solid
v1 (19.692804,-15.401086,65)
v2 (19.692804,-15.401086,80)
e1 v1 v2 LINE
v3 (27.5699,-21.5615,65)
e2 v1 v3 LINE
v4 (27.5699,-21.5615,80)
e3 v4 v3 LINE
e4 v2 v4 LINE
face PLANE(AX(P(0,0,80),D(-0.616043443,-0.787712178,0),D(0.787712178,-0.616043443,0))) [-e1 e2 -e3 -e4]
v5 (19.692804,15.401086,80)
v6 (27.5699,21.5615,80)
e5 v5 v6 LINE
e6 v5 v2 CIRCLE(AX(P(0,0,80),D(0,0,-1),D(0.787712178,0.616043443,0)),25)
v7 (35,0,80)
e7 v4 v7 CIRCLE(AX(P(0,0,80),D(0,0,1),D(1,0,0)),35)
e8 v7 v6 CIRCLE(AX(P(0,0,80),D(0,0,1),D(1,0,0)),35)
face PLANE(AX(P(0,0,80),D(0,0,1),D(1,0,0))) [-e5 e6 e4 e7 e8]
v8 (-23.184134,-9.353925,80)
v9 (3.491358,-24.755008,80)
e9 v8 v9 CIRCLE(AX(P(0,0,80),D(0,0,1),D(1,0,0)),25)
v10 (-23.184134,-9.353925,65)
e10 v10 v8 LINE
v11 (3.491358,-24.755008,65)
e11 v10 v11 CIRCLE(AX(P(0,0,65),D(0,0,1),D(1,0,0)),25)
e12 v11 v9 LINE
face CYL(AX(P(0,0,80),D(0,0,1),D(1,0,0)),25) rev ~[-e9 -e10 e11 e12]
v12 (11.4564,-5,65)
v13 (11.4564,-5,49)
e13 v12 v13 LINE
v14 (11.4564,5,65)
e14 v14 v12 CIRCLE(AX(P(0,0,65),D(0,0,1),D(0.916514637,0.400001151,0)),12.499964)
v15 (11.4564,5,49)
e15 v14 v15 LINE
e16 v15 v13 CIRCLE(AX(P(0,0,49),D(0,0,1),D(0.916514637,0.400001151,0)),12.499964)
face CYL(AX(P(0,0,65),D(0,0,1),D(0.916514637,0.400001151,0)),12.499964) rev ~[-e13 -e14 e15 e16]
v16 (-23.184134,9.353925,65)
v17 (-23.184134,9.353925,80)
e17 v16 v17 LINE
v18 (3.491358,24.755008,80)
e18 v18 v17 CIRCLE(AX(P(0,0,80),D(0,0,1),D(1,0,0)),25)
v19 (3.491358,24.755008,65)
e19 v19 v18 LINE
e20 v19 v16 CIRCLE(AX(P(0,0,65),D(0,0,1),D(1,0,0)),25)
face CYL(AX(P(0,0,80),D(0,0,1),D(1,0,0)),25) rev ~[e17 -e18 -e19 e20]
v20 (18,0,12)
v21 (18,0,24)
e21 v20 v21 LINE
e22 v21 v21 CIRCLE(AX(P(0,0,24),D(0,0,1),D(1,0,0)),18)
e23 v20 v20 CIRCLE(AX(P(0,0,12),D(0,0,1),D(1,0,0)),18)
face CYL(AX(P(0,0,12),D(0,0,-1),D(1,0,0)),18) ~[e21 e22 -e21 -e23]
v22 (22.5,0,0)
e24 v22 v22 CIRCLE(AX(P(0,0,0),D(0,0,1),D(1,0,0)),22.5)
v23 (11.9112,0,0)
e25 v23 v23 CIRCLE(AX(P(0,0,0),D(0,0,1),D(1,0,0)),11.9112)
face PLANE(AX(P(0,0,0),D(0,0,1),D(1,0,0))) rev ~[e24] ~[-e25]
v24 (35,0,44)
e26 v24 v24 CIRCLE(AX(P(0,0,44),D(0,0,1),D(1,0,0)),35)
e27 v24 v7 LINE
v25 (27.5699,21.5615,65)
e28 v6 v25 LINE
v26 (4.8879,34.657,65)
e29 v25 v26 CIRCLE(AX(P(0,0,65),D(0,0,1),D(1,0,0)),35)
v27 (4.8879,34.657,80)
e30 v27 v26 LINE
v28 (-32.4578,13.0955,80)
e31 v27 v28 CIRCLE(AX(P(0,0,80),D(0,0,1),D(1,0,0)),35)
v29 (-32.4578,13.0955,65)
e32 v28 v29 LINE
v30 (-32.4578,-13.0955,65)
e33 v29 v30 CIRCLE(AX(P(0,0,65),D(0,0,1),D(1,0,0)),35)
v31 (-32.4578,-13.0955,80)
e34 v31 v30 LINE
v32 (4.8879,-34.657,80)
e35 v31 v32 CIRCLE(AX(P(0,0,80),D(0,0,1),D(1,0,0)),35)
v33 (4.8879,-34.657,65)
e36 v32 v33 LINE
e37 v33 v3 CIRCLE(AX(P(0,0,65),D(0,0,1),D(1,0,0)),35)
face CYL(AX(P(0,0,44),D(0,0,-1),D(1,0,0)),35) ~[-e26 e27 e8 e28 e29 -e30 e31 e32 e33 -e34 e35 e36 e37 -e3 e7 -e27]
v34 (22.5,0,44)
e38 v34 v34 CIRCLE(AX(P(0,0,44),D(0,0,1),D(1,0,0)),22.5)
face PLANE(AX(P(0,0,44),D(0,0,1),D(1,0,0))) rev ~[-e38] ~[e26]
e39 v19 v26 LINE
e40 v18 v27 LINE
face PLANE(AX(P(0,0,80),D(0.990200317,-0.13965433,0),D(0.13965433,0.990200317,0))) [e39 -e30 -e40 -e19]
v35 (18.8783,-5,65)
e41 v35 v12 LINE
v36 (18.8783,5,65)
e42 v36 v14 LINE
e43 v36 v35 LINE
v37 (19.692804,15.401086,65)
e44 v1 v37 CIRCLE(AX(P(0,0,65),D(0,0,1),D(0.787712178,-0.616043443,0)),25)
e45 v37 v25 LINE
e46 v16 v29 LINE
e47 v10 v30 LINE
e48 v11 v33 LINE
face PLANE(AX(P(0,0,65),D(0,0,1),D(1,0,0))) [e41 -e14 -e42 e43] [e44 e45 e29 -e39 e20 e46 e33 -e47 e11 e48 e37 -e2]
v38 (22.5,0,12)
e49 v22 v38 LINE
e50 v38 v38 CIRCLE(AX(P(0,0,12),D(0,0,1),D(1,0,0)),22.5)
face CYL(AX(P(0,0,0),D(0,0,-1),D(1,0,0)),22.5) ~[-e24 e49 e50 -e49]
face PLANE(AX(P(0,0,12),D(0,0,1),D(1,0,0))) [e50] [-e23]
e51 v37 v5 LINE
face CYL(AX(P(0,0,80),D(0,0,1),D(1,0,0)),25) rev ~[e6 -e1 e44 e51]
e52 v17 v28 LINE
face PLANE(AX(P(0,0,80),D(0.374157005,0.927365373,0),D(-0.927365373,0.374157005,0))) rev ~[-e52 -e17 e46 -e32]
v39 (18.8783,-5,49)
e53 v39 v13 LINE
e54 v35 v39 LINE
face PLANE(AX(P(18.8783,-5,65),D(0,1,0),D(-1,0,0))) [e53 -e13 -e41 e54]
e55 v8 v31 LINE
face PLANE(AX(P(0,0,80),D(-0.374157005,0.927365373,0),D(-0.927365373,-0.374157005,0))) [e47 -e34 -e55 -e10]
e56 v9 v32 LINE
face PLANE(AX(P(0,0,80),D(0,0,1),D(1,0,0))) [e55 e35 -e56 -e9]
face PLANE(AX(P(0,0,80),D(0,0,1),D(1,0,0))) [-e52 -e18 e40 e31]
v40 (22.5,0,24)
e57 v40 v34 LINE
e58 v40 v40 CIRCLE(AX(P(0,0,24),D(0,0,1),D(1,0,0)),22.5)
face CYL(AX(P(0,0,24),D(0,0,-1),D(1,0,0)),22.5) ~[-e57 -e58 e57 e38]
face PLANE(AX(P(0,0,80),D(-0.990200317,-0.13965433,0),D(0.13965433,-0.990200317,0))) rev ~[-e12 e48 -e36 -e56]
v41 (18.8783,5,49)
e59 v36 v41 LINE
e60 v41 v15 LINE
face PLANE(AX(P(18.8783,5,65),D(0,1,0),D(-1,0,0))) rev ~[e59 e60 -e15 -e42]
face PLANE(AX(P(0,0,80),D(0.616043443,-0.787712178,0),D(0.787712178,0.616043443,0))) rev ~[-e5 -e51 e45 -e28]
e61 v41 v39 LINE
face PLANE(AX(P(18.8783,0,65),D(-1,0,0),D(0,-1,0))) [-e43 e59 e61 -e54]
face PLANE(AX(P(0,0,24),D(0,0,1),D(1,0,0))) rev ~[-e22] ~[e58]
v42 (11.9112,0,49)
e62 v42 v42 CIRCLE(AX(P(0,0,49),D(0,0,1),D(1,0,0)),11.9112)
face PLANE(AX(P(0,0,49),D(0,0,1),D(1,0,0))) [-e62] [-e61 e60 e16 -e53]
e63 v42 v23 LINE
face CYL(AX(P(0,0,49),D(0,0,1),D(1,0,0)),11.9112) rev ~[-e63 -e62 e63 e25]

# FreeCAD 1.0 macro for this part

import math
import FreeCAD as App
import Part
import Sketcher
from FreeCAD import Vector
Q = App.Units.Quantity

doc = App.newDocument("Part")
body = doc.addObject("PartDesign::Body", "Body")

sketch1 = body.newObject("Sketcher::SketchObject", "Sketch")
sketch1.AttachmentSupport = (doc.getObject("XY_Plane"), [""])
sketch1.MapMode = "FlatFace"
sketch1.addGeometry(Part.Circle(Vector(0, 0, 0), Vector(0, 0, 1), 22), False)
sketch1.addConstraint([
    Sketcher.Constraint("Coincident", 0, 3, -1, 1),
    Sketcher.Constraint("Diameter", 0, Q("45 mm")),
])
pad1 = body.newObject("PartDesign::Pad", "Pad")
pad1.Profile = sketch1
pad1.Length = 12

sketch2 = body.newObject("Sketcher::SketchObject", "Sketch001")
sketch2.AttachmentSupport = (doc.getObject("XY_Plane"), [""])
sketch2.MapMode = "FlatFace"
sketch2.AttachmentOffset = App.Placement(Vector(0, 0, 12), App.Rotation())
sketch2.addGeometry(Part.Circle(Vector(0, 0, 0), Vector(0, 0, 1), 18), False)
sketch2.addConstraint([
    Sketcher.Constraint("Coincident", 0, 3, -1, 1),
    Sketcher.Constraint("Diameter", 0, Q("36 mm")),
])
pad2 = body.newObject("PartDesign::Pad", "Pad001")
pad2.Profile = sketch2
pad2.Length = 12

sketch3 = body.newObject("Sketcher::SketchObject", "Sketch002")
sketch3.AttachmentSupport = (doc.getObject("XY_Plane"), [""])
sketch3.MapMode = "FlatFace"
sketch3.AttachmentOffset = App.Placement(Vector(0, 0, 24), App.Rotation())
sketch3.addGeometry(Part.Circle(Vector(0, 0, 0), Vector(0, 0, 1), 22), False)
sketch3.addConstraint([
    Sketcher.Constraint("Coincident", 0, 3, -1, 1),
    Sketcher.Constraint("Diameter", 0, Q("45 mm")),
])
pad3 = body.newObject("PartDesign::Pad", "Pad002")
pad3.Profile = sketch3
pad3.Length = 20

sketch4 = body.newObject("Sketcher::SketchObject", "Sketch003")
sketch4.AttachmentSupport = (doc.getObject("XY_Plane"), [""])
sketch4.MapMode = "FlatFace"
sketch4.AttachmentOffset = App.Placement(Vector(0, 0, 44), App.Rotation())
sketch4.addGeometry(Part.Circle(Vector(0, 0, 0), Vector(0, 0, 1), 35), False)
sketch4.addConstraint([
    Sketcher.Constraint("Coincident", 0, 3, -1, 1),
    Sketcher.Constraint("Diameter", 0, Q("70 mm")),
])
pad4 = body.newObject("PartDesign::Pad", "Pad003")
pad4.Profile = sketch4
pad4.Length = 36

sketch5 = body.newObject("Sketcher::SketchObject", "Sketch004")
sketch5.AttachmentSupport = (doc.getObject("XY_Plane"), [""])
sketch5.MapMode = "FlatFace"
sketch5.AttachmentOffset = App.Placement(Vector(0, 0, 80), App.Rotation())
sketch5.addGeometry(Part.Circle(Vector(0, 0, 0), Vector(0, 0, 1), 25), False)
sketch5.addConstraint([
    Sketcher.Constraint("Coincident", 0, 3, -1, 1),
    Sketcher.Constraint("Diameter", 0, Q("50 mm")),
])
pocket1 = body.newObject("PartDesign::Pocket", "Pocket")
pocket1.Profile = sketch5
pocket1.Length = 15

sketch6 = body.newObject("Sketcher::SketchObject", "Sketch005")
sketch6.AttachmentSupport = (doc.getObject("XY_Plane"), [""])
sketch6.MapMode = "FlatFace"
sketch6.AttachmentOffset = App.Placement(Vector(0, 0, 80), App.Rotation())
sketch6.addGeometry([
    Part.LineSegment(Vector(0, 0, 0), Vector(28, 22, 0)),
    Part.ArcOfCircle(Part.Circle(Vector(0, 0, 0), Vector(0, 0, 1), 35), math.radians(38), math.radians(82)),
    Part.LineSegment(Vector(5, 35, 0), Vector(0, 0, 0)),
    Part.ArcOfCircle(Part.Circle(Vector(0, 0, 0), Vector(0, 0, 1), 35), math.radians(-82), math.radians(-38)),
    Part.LineSegment(Vector(28, -22, 0), Vector(0, 0, 0)),
    Part.LineSegment(Vector(0, 0, 0), Vector(5, -35, 0)),
    Part.LineSegment(Vector(-32, -13, 0), Vector(0, 0, 0)),
    Part.LineSegment(Vector(0, 0, 0), Vector(-32, 13, 0)),
    Part.ArcOfCircle(Part.Circle(Vector(0, 0, 0), Vector(0, 0, 1), 35), math.radians(158), math.radians(202)),
], False)
sketch6.addConstraint([
    Sketcher.Constraint("Coincident", 0, 2, 1, 1),
    Sketcher.Constraint("Coincident", 1, 2, 2, 1),
    Sketcher.Constraint("Coincident", 2, 2, 0, 1),
    Sketcher.Constraint("Coincident", 3, 2, 4, 1),
    Sketcher.Constraint("Coincident", 4, 2, 5, 1),
    Sketcher.Constraint("Coincident", 5, 2, 3, 1),
    Sketcher.Constraint("Coincident", 6, 2, 7, 1),
    Sketcher.Constraint("Coincident", 7, 2, 8, 1),
    Sketcher.Constraint("Coincident", 8, 2, 6, 1),
    Sketcher.Constraint("Coincident", 1, 3, -1, 1),
    Sketcher.Constraint("Coincident", 3, 3, -1, 1),
    Sketcher.Constraint("Coincident", 8, 3, -1, 1),
    Sketcher.Constraint("Coincident", 2, 2, -1, 1),
    Sketcher.Constraint("Coincident", 4, 2, -1, 1),
    Sketcher.Constraint("Coincident", 6, 2, -1, 1),
    Sketcher.Constraint("Equal", 1, 3),
    Sketcher.Constraint("Equal", 3, 8),
    Sketcher.Constraint("Vertical", 0, 2, 3, 2),
    Sketcher.Constraint("Vertical", 1, 2, 5, 2),
    Sketcher.Constraint("Vertical", 7, 2, 8, 2),
    Sketcher.Constraint("Radius", 1, Q("35 mm")),
    Sketcher.Constraint("DistanceX", -1, 1, 0, 2, Q("27.57 mm")),
    Sketcher.Constraint("DistanceX", -1, 1, 1, 2, Q("4.888 mm")),
    Sketcher.Constraint("DistanceY", 8, 2, 7, 2, Q("26.191 mm")),
])
pocket2 = body.newObject("PartDesign::Pocket", "Pocket001")
pocket2.Profile = sketch6
pocket2.Length = 15

sketch7 = body.newObject("Sketcher::SketchObject", "Sketch006")
sketch7.AttachmentSupport = (doc.getObject("XY_Plane"), [""])
sketch7.MapMode = "FlatFace"
sketch7.AttachmentOffset = App.Placement(Vector(0, 0, 65), App.Rotation())
sketch7.addGeometry([
    Part.LineSegment(Vector(19, 5, 0), Vector(11, 5, 0)),
    Part.ArcOfCircle(Part.Circle(Vector(0, 0, 0), Vector(0, 0, 1), 12), math.radians(24), math.radians(336)),
    Part.LineSegment(Vector(11, -5, 0), Vector(19, -5, 0)),
    Part.LineSegment(Vector(19, -5, 0), Vector(19, 5, 0)),
], False)
sketch7.addConstraint([
    Sketcher.Constraint("Coincident", 0, 2, 1, 1),
    Sketcher.Constraint("Coincident", 1, 2, 2, 1),
    Sketcher.Constraint("Coincident", 2, 2, 3, 1),
    Sketcher.Constraint("Coincident", 3, 2, 0, 1),
    Sketcher.Constraint("Horizontal", 0),
    Sketcher.Constraint("Horizontal", 2),
    Sketcher.Constraint("Vertical", 3),
    Sketcher.Constraint("Coincident", 1, 3, -1, 1),
    Sketcher.Constraint("Vertical", 0, 2, 1, 2),
    Sketcher.Constraint("Radius", 1, Q("12.5 mm")),
    Sketcher.Constraint("DistanceY", 3, 1, 3, 2, Q("10 mm")),
    Sketcher.Constraint("DistanceX", 0, 2, 0, 1, Q("7.422 mm")),
])
pocket3 = body.newObject("PartDesign::Pocket", "Pocket002")
pocket3.Profile = sketch7
pocket3.Length = 16

sketch8 = body.newObject("Sketcher::SketchObject", "Sketch007")
sketch8.AttachmentSupport = (doc.getObject("XY_Plane"), [""])
sketch8.MapMode = "FlatFace"
sketch8.AttachmentOffset = App.Placement(Vector(0, 0, 49), App.Rotation())
sketch8.addGeometry(Part.Circle(Vector(0, 0, 0), Vector(0, 0, 1), 12), False)
sketch8.addConstraint([
    Sketcher.Constraint("Coincident", 0, 3, -1, 1),
    Sketcher.Constraint("Diameter", 0, Q("23.8224 mm")),
])
pocket4 = body.newObject("PartDesign::Pocket", "Pocket003")
pocket4.Profile = sketch8
pocket4.Length = 50.8

doc.recompute()
